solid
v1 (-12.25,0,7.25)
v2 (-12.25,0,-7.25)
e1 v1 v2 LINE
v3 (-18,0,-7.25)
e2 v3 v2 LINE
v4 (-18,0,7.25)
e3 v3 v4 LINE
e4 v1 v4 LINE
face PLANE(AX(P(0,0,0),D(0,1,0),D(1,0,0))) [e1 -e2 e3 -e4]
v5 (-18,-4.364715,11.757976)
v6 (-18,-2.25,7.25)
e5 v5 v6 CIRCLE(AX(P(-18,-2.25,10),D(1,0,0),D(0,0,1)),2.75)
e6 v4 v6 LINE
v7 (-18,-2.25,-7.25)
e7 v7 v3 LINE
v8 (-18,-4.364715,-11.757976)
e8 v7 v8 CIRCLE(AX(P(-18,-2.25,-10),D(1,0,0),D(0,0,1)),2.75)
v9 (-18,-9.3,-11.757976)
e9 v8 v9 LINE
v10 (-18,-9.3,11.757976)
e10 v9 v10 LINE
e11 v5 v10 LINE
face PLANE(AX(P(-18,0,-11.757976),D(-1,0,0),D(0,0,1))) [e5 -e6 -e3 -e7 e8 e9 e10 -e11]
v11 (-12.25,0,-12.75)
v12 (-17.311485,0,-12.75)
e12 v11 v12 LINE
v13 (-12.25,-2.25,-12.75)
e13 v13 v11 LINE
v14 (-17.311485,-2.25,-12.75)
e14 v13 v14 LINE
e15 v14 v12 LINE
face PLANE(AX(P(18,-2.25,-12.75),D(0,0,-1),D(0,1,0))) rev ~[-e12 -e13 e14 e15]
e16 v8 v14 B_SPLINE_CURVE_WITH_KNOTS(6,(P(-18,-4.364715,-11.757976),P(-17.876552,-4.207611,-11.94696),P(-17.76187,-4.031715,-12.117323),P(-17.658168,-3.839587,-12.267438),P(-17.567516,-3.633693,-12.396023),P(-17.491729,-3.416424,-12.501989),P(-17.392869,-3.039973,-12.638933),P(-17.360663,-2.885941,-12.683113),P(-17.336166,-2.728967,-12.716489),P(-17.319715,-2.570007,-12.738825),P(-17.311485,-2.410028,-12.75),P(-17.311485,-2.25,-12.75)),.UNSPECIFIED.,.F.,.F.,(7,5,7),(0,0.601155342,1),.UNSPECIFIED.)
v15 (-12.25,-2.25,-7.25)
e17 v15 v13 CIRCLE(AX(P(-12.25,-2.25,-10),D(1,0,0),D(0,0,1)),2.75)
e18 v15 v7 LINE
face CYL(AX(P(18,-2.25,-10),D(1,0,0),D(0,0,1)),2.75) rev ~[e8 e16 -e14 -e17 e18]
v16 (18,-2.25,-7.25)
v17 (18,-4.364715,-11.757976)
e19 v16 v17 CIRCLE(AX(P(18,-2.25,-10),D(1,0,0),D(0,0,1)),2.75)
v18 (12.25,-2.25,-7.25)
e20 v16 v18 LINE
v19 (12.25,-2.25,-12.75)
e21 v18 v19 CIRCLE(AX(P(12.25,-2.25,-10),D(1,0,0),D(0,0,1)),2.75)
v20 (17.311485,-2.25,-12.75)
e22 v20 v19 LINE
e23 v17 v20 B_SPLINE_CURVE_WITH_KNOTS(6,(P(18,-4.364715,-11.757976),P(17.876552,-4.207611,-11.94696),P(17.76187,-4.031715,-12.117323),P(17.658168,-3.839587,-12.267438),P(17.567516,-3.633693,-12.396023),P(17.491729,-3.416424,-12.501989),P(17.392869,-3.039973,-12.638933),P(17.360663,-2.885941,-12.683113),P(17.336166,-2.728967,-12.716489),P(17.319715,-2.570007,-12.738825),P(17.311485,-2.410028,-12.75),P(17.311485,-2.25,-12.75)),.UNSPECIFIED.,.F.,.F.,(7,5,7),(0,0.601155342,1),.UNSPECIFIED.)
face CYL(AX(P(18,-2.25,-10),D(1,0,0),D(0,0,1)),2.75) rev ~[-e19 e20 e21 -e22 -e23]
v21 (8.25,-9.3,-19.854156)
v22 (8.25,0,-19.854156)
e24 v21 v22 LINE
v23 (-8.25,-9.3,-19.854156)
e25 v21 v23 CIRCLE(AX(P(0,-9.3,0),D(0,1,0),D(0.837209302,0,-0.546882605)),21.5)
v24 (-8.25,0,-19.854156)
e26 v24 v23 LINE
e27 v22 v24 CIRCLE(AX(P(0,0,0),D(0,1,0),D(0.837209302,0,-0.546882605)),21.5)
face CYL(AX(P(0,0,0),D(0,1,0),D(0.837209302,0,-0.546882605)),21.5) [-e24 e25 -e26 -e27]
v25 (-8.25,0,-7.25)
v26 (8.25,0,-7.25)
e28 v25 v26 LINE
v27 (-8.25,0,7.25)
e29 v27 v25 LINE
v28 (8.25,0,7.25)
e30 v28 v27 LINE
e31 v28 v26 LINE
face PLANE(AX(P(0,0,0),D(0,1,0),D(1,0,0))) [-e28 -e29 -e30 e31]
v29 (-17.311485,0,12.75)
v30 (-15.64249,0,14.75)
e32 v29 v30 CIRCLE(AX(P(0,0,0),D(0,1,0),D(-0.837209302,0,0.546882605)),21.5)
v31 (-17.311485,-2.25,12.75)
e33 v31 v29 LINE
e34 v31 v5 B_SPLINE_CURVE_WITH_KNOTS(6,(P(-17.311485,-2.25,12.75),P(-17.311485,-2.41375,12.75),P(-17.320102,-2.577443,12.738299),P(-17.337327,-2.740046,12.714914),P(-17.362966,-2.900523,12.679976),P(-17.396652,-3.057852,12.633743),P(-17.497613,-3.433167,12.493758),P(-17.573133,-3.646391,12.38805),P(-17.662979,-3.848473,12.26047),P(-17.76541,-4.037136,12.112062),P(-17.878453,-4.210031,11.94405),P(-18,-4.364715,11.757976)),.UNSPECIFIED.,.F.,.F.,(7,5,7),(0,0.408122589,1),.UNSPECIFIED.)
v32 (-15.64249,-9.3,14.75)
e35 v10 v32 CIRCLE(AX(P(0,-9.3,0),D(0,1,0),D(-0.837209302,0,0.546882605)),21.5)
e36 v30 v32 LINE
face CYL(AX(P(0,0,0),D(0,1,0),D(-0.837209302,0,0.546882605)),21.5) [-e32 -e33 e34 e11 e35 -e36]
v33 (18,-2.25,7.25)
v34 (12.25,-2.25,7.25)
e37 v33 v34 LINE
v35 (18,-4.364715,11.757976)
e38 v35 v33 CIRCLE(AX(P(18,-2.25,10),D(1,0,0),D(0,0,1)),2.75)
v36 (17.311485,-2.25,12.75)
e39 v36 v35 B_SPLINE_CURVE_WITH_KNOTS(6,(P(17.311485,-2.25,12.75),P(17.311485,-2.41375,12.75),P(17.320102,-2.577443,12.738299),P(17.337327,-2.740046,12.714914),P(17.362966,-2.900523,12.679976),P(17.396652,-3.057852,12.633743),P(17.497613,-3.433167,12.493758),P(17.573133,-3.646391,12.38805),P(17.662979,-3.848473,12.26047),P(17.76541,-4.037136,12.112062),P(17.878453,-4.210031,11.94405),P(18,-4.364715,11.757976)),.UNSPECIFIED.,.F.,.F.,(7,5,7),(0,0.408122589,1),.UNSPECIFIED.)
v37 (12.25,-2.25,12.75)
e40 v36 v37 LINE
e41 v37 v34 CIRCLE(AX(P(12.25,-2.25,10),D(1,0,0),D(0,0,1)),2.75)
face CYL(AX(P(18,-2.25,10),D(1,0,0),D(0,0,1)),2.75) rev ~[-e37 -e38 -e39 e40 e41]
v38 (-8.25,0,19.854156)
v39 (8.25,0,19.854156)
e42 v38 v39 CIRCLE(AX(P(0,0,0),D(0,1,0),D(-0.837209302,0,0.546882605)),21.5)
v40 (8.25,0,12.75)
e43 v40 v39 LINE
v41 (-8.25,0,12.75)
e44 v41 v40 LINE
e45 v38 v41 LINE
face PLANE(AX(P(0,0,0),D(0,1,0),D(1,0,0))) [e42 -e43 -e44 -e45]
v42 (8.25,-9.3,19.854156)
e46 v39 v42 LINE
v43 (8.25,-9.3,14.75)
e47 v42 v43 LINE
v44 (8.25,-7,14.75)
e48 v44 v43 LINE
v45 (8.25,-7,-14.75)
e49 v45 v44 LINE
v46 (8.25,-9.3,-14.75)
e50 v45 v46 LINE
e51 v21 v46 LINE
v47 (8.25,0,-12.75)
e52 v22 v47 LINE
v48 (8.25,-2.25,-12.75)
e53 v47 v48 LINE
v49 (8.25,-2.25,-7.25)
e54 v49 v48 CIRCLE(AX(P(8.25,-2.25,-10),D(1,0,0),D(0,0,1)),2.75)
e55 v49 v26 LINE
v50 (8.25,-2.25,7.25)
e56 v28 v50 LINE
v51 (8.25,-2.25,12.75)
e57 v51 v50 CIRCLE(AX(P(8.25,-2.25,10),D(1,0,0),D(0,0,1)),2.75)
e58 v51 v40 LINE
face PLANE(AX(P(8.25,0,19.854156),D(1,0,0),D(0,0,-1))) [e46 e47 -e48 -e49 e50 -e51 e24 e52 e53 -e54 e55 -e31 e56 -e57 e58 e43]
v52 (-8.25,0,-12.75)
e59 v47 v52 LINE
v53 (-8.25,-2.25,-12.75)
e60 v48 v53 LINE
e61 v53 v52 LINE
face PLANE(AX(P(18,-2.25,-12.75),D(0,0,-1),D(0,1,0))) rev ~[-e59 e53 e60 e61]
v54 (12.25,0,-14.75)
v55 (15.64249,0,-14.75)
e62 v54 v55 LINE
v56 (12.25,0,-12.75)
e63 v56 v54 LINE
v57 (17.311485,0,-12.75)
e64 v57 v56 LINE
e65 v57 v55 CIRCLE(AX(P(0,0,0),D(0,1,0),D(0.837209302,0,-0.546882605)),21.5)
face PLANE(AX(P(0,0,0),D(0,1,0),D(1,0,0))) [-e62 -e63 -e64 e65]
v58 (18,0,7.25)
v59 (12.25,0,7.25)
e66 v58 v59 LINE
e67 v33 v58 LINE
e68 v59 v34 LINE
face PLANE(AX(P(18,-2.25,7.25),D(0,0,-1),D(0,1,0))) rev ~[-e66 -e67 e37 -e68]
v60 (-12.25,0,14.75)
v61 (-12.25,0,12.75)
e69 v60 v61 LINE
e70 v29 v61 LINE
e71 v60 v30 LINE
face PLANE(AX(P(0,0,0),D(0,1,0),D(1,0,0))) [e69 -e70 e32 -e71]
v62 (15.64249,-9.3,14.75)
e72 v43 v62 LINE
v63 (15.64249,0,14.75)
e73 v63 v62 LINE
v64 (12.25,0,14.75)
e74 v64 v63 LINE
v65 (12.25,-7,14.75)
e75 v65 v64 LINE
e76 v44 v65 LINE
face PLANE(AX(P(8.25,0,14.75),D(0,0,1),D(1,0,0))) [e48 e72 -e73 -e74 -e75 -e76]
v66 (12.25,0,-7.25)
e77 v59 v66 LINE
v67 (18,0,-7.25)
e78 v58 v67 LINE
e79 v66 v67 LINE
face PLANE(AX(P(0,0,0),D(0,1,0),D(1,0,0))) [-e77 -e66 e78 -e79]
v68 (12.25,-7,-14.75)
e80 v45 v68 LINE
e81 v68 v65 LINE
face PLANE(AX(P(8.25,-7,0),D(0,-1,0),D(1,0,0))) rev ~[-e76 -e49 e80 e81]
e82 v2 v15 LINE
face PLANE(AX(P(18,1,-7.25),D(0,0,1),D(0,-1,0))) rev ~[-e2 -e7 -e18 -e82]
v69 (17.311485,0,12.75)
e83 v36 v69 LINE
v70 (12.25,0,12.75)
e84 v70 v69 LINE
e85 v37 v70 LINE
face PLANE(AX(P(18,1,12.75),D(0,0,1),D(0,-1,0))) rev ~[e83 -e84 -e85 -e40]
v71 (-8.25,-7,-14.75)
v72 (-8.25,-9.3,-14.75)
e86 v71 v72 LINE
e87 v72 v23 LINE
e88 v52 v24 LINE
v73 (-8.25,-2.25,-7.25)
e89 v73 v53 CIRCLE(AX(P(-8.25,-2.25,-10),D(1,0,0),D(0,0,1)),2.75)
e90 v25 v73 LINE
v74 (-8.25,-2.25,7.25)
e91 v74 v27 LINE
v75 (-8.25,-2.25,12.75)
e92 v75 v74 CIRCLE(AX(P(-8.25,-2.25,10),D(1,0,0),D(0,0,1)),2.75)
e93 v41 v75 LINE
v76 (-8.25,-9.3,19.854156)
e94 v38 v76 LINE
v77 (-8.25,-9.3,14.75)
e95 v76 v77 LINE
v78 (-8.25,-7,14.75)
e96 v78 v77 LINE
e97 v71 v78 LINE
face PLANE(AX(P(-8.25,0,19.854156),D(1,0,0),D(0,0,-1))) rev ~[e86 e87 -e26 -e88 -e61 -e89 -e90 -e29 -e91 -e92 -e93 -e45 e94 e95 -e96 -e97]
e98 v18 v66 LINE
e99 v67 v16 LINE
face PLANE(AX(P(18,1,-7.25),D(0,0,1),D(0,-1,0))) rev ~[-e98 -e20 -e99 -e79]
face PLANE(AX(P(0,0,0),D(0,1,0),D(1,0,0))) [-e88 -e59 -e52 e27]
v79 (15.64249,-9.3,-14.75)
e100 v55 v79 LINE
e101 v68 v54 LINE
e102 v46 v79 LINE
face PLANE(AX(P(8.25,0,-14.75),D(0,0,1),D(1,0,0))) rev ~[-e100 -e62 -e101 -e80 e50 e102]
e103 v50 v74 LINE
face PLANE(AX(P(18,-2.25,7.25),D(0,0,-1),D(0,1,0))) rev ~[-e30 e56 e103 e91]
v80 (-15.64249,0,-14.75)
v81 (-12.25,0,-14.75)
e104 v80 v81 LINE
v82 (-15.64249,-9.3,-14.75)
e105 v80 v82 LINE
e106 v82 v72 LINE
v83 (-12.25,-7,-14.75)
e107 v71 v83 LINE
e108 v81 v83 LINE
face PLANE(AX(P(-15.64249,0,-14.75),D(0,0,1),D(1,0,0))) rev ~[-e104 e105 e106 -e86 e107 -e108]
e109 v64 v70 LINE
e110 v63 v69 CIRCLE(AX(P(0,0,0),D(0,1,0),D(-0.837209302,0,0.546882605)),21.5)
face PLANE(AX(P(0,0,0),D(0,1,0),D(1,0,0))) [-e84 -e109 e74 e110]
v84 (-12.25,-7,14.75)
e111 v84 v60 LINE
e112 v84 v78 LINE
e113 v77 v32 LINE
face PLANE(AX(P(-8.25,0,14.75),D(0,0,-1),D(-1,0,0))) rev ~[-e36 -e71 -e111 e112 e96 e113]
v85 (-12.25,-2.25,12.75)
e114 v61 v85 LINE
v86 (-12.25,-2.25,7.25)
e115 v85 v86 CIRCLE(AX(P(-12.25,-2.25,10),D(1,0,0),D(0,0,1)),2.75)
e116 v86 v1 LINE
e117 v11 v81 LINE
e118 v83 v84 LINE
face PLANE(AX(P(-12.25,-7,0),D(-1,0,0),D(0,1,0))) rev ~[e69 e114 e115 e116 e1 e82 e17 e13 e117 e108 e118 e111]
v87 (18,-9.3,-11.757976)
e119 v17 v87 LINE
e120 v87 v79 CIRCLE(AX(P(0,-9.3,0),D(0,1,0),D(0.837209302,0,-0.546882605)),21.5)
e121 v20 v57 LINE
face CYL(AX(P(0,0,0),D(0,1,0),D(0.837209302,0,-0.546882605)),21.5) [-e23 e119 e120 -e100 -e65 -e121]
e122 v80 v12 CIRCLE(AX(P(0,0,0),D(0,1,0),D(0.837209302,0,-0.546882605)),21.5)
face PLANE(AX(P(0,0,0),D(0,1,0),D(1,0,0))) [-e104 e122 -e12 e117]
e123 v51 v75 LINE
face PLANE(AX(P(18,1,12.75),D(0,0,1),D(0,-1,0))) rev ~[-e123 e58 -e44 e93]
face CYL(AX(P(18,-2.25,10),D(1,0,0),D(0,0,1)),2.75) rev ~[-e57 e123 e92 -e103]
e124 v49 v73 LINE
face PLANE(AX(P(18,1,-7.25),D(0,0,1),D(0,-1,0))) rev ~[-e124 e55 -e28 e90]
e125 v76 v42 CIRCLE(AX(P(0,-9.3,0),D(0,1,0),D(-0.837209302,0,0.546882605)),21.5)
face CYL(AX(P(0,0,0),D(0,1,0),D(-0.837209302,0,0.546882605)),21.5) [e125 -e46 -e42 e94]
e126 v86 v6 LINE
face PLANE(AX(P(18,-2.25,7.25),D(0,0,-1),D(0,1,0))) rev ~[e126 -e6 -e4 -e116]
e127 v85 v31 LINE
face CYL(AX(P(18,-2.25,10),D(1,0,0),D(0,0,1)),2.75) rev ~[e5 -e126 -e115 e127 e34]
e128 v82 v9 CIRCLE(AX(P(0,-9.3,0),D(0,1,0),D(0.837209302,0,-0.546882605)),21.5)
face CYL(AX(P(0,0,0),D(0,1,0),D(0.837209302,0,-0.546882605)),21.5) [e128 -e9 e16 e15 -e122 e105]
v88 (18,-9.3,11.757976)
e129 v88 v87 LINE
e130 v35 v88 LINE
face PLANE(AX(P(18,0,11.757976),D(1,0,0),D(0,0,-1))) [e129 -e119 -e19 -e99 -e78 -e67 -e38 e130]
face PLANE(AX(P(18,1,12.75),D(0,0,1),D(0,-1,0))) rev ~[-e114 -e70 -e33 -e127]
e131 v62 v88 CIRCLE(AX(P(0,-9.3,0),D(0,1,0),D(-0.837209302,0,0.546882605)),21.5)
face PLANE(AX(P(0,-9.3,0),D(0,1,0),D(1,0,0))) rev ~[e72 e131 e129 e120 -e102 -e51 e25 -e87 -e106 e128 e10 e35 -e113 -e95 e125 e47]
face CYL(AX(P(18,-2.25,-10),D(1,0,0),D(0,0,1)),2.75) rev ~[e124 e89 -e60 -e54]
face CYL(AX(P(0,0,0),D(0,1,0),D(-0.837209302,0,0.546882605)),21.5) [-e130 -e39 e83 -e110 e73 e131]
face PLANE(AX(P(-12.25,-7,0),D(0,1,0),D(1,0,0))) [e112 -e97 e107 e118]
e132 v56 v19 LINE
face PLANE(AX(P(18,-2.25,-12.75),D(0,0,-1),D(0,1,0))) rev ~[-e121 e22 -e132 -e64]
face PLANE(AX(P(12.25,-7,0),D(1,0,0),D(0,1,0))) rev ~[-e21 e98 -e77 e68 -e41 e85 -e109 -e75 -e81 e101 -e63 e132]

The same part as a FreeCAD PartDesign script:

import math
import FreeCAD as App
import Part
import Sketcher
Q = App.Units.Quantity

doc = App.newDocument("Part")
params = doc.addObject("Spreadsheet::Sheet", "Params")
for row, (alias, value) in enumerate([
    ("sketch1_radius", "21.5 mm"),
    ("pad1_length", "9.3 mm"),
    ("sketch2_radius", "21.5 mm"),
    ("sketch3_radius", "2.75 mm"),
    ("sketch3_width", "3.25 mm"),
    ("sketch4_width", "4 mm"),
    ("sketch4_height", "7 mm"),
    ("pocket3_length", "50 mm"),
], start=1):
    params.set(f"A{row}", alias)
    params.set(f"B{row}", "=" + value)
    params.setAlias(f"B{row}", alias)

body = doc.addObject("PartDesign::Body", "Body")

# Sketch on XZ plane
sketch1 = body.newObject("Sketcher::SketchObject", "Sketch")
sketch1.AttachmentSupport = (doc.getObject("XZ_Plane"), [""])
sketch1.MapMode = "FlatFace"
sketch1.addGeometry(Part.LineSegment(App.Vector(18, 12, 0), App.Vector(18, -12, 0)), False)
sketch1.addGeometry(Part.ArcOfCircle(Part.Circle(App.Vector(0, 0, 0), App.Vector(0, 0, 1), 22), math.radians(-147), math.radians(-33)), False)
sketch1.addGeometry(Part.LineSegment(App.Vector(-18, -12, 0), App.Vector(-18, 12, 0)), False)
sketch1.addGeometry(Part.ArcOfCircle(Part.Circle(App.Vector(0, 0, 0), App.Vector(0, 0, 1), 22), math.radians(33), math.radians(147)), False)
sketch1.addConstraint(Sketcher.Constraint("Coincident", 0, 2, 1, 2))
sketch1.addConstraint(Sketcher.Constraint("Coincident", 1, 1, 2, 1))
sketch1.addConstraint(Sketcher.Constraint("Coincident", 2, 2, 3, 2))
sketch1.addConstraint(Sketcher.Constraint("Coincident", 3, 1, 0, 1))
sketch1.addConstraint(Sketcher.Constraint("Vertical", 0))
sketch1.addConstraint(Sketcher.Constraint("Vertical", 2))
sketch1.addConstraint(Sketcher.Constraint("Coincident", 1, 3, -1, 1))
sketch1.addConstraint(Sketcher.Constraint("Coincident", 3, 3, -1, 1))
sketch1.addConstraint(Sketcher.Constraint("Equal", 1, 3))
sketch1.addConstraint(Sketcher.Constraint("Horizontal", 0, 2, 1, 1))
sketch1.addConstraint(Sketcher.Constraint("Radius", 1, Q("21.5 mm")))
sketch1.addConstraint(Sketcher.Constraint("DistanceX", -1, 1, 0, 2, Q("18 mm")))
sketch1.setExpression("Constraints[10]", "Params.sketch1_radius")
pad1 = body.newObject("PartDesign::Pad", "Pad")
pad1.Profile = sketch1
pad1.setExpression("Length", "Params.pad1_length")

# Sketch on XZ plane
sketch2 = body.newObject("Sketcher::SketchObject", "Sketch001")
sketch2.AttachmentSupport = (doc.getObject("XZ_Plane"), [""])
sketch2.MapMode = "FlatFace"
sketch2.addGeometry(Part.LineSegment(App.Vector(16, 15, 0), App.Vector(8, 15, 0)), False)
sketch2.addGeometry(Part.LineSegment(App.Vector(8, 15, 0), App.Vector(8, 20, 0)), False)
sketch2.addGeometry(Part.ArcOfCircle(Part.Circle(App.Vector(0, 0, 0), App.Vector(0, 0, 1), 21), math.radians(43), math.radians(67)), False)
sketch2.addGeometry(Part.LineSegment(App.Vector(-8, 20, 0), App.Vector(-8, 15, 0)), False)
sketch2.addGeometry(Part.LineSegment(App.Vector(-8, 15, 0), App.Vector(-16, 15, 0)), False)
sketch2.addGeometry(Part.ArcOfCircle(Part.Circle(App.Vector(0, 0, 0), App.Vector(0, 0, 1), 21), math.radians(113), math.radians(137)), False)
sketch2.addGeometry(Part.LineSegment(App.Vector(8, -15, 0), App.Vector(16, -15, 0)), False)
sketch2.addGeometry(Part.ArcOfCircle(Part.Circle(App.Vector(0, 0, 0), App.Vector(0, 0, 1), 21), math.radians(-67), math.radians(-43)), False)
sketch2.addGeometry(Part.LineSegment(App.Vector(8, -20, 0), App.Vector(8, -15, 0)), False)
sketch2.addGeometry(Part.LineSegment(App.Vector(-16, -15, 0), App.Vector(-8, -15, 0)), False)
sketch2.addGeometry(Part.LineSegment(App.Vector(-8, -15, 0), App.Vector(-8, -20, 0)), False)
sketch2.addGeometry(Part.ArcOfCircle(Part.Circle(App.Vector(0, 0, 0), App.Vector(0, 0, 1), 21), math.radians(-137), math.radians(-113)), False)
sketch2.addConstraint(Sketcher.Constraint("Coincident", 0, 2, 1, 1))
sketch2.addConstraint(Sketcher.Constraint("Coincident", 1, 2, 2, 2))
sketch2.addConstraint(Sketcher.Constraint("Coincident", 2, 1, 0, 1))
sketch2.addConstraint(Sketcher.Constraint("Coincident", 3, 2, 4, 1))
sketch2.addConstraint(Sketcher.Constraint("Coincident", 4, 2, 5, 2))
sketch2.addConstraint(Sketcher.Constraint("Coincident", 5, 1, 3, 1))
sketch2.addConstraint(Sketcher.Constraint("Coincident", 6, 2, 7, 2))
sketch2.addConstraint(Sketcher.Constraint("Coincident", 7, 1, 8, 1))
sketch2.addConstraint(Sketcher.Constraint("Coincident", 8, 2, 6, 1))
sketch2.addConstraint(Sketcher.Constraint("Coincident", 9, 2, 10, 1))
sketch2.addConstraint(Sketcher.Constraint("Coincident", 10, 2, 11, 2))
sketch2.addConstraint(Sketcher.Constraint("Coincident", 11, 1, 9, 1))
sketch2.addConstraint(Sketcher.Constraint("Horizontal", 0))
sketch2.addConstraint(Sketcher.Constraint("Vertical", 1))
sketch2.addConstraint(Sketcher.Constraint("Vertical", 3))
sketch2.addConstraint(Sketcher.Constraint("Horizontal", 4))
sketch2.addConstraint(Sketcher.Constraint("Horizontal", 6))
sketch2.addConstraint(Sketcher.Constraint("Vertical", 8))
sketch2.addConstraint(Sketcher.Constraint("Horizontal", 9))
sketch2.addConstraint(Sketcher.Constraint("Vertical", 10))
sketch2.addConstraint(Sketcher.Constraint("Coincident", 2, 3, -1, 1))
sketch2.addConstraint(Sketcher.Constraint("Coincident", 5, 3, -1, 1))
sketch2.addConstraint(Sketcher.Constraint("Coincident", 7, 3, -1, 1))
sketch2.addConstraint(Sketcher.Constraint("Coincident", 11, 3, -1, 1))
sketch2.addConstraint(Sketcher.Constraint("Equal", 2, 5))
sketch2.addConstraint(Sketcher.Constraint("Equal", 5, 7))
sketch2.addConstraint(Sketcher.Constraint("Equal", 7, 11))
sketch2.addConstraint(Sketcher.Constraint("Symmetric", 3, 2, 8, 2, -1, 1))
sketch2.addConstraint(Sketcher.Constraint("Symmetric", 0, 2, 9, 2, -1, 1))
sketch2.addConstraint(Sketcher.Constraint("Symmetric", 0, 2, 3, 2, -2))
sketch2.addConstraint(Sketcher.Constraint("Radius", 2, Q("21.5 mm")))
sketch2.addConstraint(Sketcher.Constraint("DistanceX", 3, 2, 0, 2, Q("16.5 mm")))
sketch2.addConstraint(Sketcher.Constraint("DistanceY", 6, 2, 2, 1, Q("29.5 mm")))
sketch2.setExpression("Constraints[30]", "Params.sketch2_radius")
pocket1 = body.newObject("PartDesign::Pocket", "Pocket")
pocket1.Profile = sketch2
pocket1.Type = "ThroughAll"
pocket1.Reversed = True

# Sketch on YZ plane
sketch3 = body.newObject("Sketcher::SketchObject", "Sketch002")
sketch3.AttachmentSupport = (doc.getObject("YZ_Plane"), [""])
sketch3.MapMode = "FlatFace"
sketch3.AttachmentOffset = App.Placement(App.Vector(0, 0, 18), App.Rotation())
sketch3.addGeometry(Part.LineSegment(App.Vector(-2.2, 7.2, 0), App.Vector(1, 7.2, 0)), False)
sketch3.addGeometry(Part.LineSegment(App.Vector(1, 7.2, 0), App.Vector(1, 12.8, 0)), False)
sketch3.addGeometry(Part.LineSegment(App.Vector(1, 12.8, 0), App.Vector(-2.2, 12.8, 0)), False)
sketch3.addGeometry(Part.ArcOfCircle(Part.Circle(App.Vector(-2.2, 10, 0), App.Vector(0, 0, 1), 2.8), math.radians(90), math.radians(270)), False)
sketch3.addGeometry(Part.LineSegment(App.Vector(-2.2, -12.8, 0), App.Vector(1, -12.8, 0)), False)
sketch3.addGeometry(Part.LineSegment(App.Vector(1, -12.8, 0), App.Vector(1, -7.2, 0)), False)
sketch3.addGeometry(Part.LineSegment(App.Vector(1, -7.2, 0), App.Vector(-2.2, -7.2, 0)), False)
sketch3.addGeometry(Part.ArcOfCircle(Part.Circle(App.Vector(-2.2, -10, 0), App.Vector(0, 0, 1), 2.8), math.radians(90), math.radians(270)), False)
sketch3.addConstraint(Sketcher.Constraint("Coincident", 0, 2, 1, 1))
sketch3.addConstraint(Sketcher.Constraint("Coincident", 1, 2, 2, 1))
sketch3.addConstraint(Sketcher.Constraint("Tangent", 2, 2, 3, 1))
sketch3.addConstraint(Sketcher.Constraint("Tangent", 3, 2, 0, 1))
sketch3.addConstraint(Sketcher.Constraint("Coincident", 4, 2, 5, 1))
sketch3.addConstraint(Sketcher.Constraint("Coincident", 5, 2, 6, 1))
sketch3.addConstraint(Sketcher.Constraint("Tangent", 6, 2, 7, 1))
sketch3.addConstraint(Sketcher.Constraint("Tangent", 7, 2, 4, 1))
sketch3.addConstraint(Sketcher.Constraint("Horizontal", 0))
sketch3.addConstraint(Sketcher.Constraint("Vertical", 1))
sketch3.addConstraint(Sketcher.Constraint("Horizontal", 2))
sketch3.addConstraint(Sketcher.Constraint("Horizontal", 4))
sketch3.addConstraint(Sketcher.Constraint("Vertical", 5))
sketch3.addConstraint(Sketcher.Constraint("Horizontal", 6))
sketch3.addConstraint(Sketcher.Constraint("Equal", 3, 7))
sketch3.addConstraint(Sketcher.Constraint("Symmetric", 3, 3, 7, 3, -1))
sketch3.addConstraint(Sketcher.Constraint("Vertical", 1, 2, 4, 2))
sketch3.addConstraint(Sketcher.Constraint("Radius", 3, Q("2.75 mm")))
sketch3.addConstraint(Sketcher.Constraint("DistanceY", -1, 1, 3, 3, Q("10 mm")))
sketch3.addConstraint(Sketcher.Constraint("DistanceX", -1, 1, 0, 2, Q("1 mm")))
sketch3.addConstraint(Sketcher.Constraint("DistanceX", 0, 1, 0, 2, Q("3.25 mm")))
sketch3.setExpression("Constraints[17]", "Params.sketch3_radius")
sketch3.setExpression("Constraints[20]", "Params.sketch3_width")
pocket2 = body.newObject("PartDesign::Pocket", "Pocket001")
pocket2.Profile = sketch3
pocket2.Type = "ThroughAll"

# Sketch on XY plane
sketch4 = body.newObject("Sketcher::SketchObject", "Sketch003")
sketch4.AttachmentSupport = (doc.getObject("XY_Plane"), [""])
sketch4.MapMode = "FlatFace"
sketch4.addGeometry(Part.LineSegment(App.Vector(-12.2, 0, 0), App.Vector(-12.2, -7, 0)), False)
sketch4.addGeometry(Part.LineSegment(App.Vector(-12.2, -7, 0), App.Vector(-8.2, -7, 0)), False)
sketch4.addGeometry(Part.LineSegment(App.Vector(-8.2, -7, 0), App.Vector(-8.2, 0, 0)), False)
sketch4.addGeometry(Part.LineSegment(App.Vector(-8.2, 0, 0), App.Vector(-12.2, 0, 0)), False)
sketch4.addGeometry(Part.LineSegment(App.Vector(8.2, 0, 0), App.Vector(8.2, -7, 0)), False)
sketch4.addGeometry(Part.LineSegment(App.Vector(8.2, -7, 0), App.Vector(12.2, -7, 0)), False)
sketch4.addGeometry(Part.LineSegment(App.Vector(12.2, -7, 0), App.Vector(12.2, 0, 0)), False)
sketch4.addGeometry(Part.LineSegment(App.Vector(12.2, 0, 0), App.Vector(8.2, 0, 0)), False)
sketch4.addConstraint(Sketcher.Constraint("Coincident", 0, 2, 1, 1))
sketch4.addConstraint(Sketcher.Constraint("Coincident", 1, 2, 2, 1))
sketch4.addConstraint(Sketcher.Constraint("Coincident", 2, 2, 3, 1))
sketch4.addConstraint(Sketcher.Constraint("Coincident", 3, 2, 0, 1))
sketch4.addConstraint(Sketcher.Constraint("Coincident", 4, 2, 5, 1))
sketch4.addConstraint(Sketcher.Constraint("Coincident", 5, 2, 6, 1))
sketch4.addConstraint(Sketcher.Constraint("Coincident", 6, 2, 7, 1))
sketch4.addConstraint(Sketcher.Constraint("Coincident", 7, 2, 4, 1))
sketch4.addConstraint(Sketcher.Constraint("Vertical", 0))
sketch4.addConstraint(Sketcher.Constraint("Horizontal", 1))
sketch4.addConstraint(Sketcher.Constraint("Vertical", 2))
sketch4.addConstraint(Sketcher.Constraint("Horizontal", 3))
sketch4.addConstraint(Sketcher.Constraint("Vertical", 4))
sketch4.addConstraint(Sketcher.Constraint("Horizontal", 5))
sketch4.addConstraint(Sketcher.Constraint("Vertical", 6))
sketch4.addConstraint(Sketcher.Constraint("Horizontal", 7))
sketch4.addConstraint(Sketcher.Constraint("Symmetric", 3, 2, 6, 2, -1, 1))
sketch4.addConstraint(Sketcher.Constraint("Symmetric", 1, 2, 4, 2, -2))
sketch4.addConstraint(Sketcher.Constraint("PointOnObject", 2, 2, -1))
sketch4.addConstraint(Sketcher.Constraint("DistanceX", 1, 1, 1, 2, Q("4 mm")))
sketch4.addConstraint(Sketcher.Constraint("DistanceY", 0, 2, 0, 1, Q("7 mm")))
sketch4.addConstraint(Sketcher.Constraint("DistanceX", 1, 2, 4, 2, Q("16.5 mm")))
sketch4.setExpression("Constraints[19]", "Params.sketch4_width")
sketch4.setExpression("Constraints[20]", "Params.sketch4_height")
pocket3 = body.newObject("PartDesign::Pocket", "Pocket002")
pocket3.Profile = sketch4
pocket3.setExpression("Length", "Params.pocket3_length")
pocket3.Midplane = True

doc.recompute()
